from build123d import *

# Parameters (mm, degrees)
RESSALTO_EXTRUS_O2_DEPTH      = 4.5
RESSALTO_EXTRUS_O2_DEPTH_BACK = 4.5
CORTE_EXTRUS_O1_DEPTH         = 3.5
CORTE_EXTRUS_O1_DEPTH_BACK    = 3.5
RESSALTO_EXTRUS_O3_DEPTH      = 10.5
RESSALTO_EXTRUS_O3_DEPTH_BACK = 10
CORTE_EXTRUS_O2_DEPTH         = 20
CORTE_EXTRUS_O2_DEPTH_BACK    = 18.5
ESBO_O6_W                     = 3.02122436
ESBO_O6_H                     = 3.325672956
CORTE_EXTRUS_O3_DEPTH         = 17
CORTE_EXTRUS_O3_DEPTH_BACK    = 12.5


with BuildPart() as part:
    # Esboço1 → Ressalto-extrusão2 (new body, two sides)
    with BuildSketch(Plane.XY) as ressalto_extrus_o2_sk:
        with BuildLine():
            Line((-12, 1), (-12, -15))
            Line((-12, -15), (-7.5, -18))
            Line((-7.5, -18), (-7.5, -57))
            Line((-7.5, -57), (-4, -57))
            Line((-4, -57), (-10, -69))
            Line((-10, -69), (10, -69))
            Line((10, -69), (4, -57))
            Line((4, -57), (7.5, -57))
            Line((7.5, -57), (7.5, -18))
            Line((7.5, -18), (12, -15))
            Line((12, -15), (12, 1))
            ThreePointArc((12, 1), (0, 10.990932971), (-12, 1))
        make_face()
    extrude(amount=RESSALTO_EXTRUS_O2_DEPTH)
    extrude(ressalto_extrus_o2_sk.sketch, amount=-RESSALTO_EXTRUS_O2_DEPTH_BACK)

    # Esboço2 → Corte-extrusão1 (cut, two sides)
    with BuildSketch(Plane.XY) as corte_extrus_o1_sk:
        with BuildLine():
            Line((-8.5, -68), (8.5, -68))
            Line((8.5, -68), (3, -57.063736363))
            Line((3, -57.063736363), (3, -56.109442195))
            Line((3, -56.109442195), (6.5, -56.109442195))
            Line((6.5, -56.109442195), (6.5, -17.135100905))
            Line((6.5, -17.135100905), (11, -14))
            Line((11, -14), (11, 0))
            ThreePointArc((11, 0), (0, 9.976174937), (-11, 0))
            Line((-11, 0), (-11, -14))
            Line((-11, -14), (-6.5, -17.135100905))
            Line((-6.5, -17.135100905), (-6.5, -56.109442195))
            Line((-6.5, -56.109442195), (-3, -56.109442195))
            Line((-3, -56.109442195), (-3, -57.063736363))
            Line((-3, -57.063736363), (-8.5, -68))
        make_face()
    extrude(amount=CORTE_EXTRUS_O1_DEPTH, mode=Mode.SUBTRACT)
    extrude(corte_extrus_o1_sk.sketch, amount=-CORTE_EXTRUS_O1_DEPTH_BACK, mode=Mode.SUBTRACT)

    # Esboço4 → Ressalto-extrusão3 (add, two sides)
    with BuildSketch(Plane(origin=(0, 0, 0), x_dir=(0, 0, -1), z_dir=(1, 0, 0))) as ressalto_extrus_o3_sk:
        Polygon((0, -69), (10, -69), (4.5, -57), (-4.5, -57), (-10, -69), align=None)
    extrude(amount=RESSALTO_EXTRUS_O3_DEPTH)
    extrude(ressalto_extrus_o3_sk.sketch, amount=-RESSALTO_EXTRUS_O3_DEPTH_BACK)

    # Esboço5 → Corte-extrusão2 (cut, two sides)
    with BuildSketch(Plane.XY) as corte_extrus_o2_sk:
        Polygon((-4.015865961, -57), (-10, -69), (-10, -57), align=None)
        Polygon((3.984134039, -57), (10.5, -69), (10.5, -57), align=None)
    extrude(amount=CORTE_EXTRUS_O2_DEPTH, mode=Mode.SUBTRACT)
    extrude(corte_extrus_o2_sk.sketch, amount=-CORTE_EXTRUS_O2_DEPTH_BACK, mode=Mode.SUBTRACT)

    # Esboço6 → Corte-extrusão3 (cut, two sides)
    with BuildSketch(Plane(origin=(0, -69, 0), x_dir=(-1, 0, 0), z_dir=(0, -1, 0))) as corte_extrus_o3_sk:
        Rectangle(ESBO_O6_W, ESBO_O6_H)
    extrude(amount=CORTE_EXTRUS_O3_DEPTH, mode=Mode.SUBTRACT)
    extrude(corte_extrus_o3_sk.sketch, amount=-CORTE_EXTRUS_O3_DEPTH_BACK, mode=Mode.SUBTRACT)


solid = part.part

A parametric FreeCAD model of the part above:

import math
import FreeCAD as App
import Part
import Sketcher

V = App.Vector

doc = App.newDocument("Part")
body = doc.addObject("PartDesign::Body", "Body")

# Sketch on XY plane
sketch1 = body.newObject("Sketcher::SketchObject", "Sketch")
sketch1.AttachmentSupport = (doc.getObject("XY_Plane"), [""])
sketch1.MapMode = "FlatFace"
sketch1.addGeometry([
    Part.LineSegment(V(-12, 1, 0), V(-12, -15, 0)),  # 0
    Part.LineSegment(V(-12, -15, 0), V(-7.5, -18, 0)),  # 1
    Part.LineSegment(V(-7.5, -18, 0), V(-7.5, -57, 0)),  # 2
    Part.LineSegment(V(-7.5, -57, 0), V(-4, -57, 0)),  # 3
    Part.LineSegment(V(-4, -57, 0), V(-10, -69, 0)),  # 4
    Part.LineSegment(V(-10, -69, 0), V(10, -69, 0)),  # 5
    Part.LineSegment(V(10, -69, 0), V(4, -57, 0)),  # 6
    Part.LineSegment(V(4, -57, 0), V(7.5, -57, 0)),  # 7
    Part.LineSegment(V(7.5, -57, 0), V(7.5, -18, 0)),  # 8
    Part.LineSegment(V(7.5, -18, 0), V(12, -15, 0)),  # 9
    Part.LineSegment(V(12, -15, 0), V(12, 1, 0)),  # 10
    Part.ArcOfCircle(Part.Circle(V(0, -1.2, 0), V(0, 0, 1), 12.2), math.radians(10), math.radians(170)),  # 11
], False)
sketch1.addConstraint([
    Sketcher.Constraint("Coincident", 0, 2, 1, 1),
    Sketcher.Constraint("Coincident", 1, 2, 2, 1),
    Sketcher.Constraint("Coincident", 2, 2, 3, 1),
    Sketcher.Constraint("Coincident", 3, 2, 4, 1),
    Sketcher.Constraint("Coincident", 4, 2, 5, 1),
    Sketcher.Constraint("Coincident", 5, 2, 6, 1),
    Sketcher.Constraint("Coincident", 6, 2, 7, 1),
    Sketcher.Constraint("Coincident", 7, 2, 8, 1),
    Sketcher.Constraint("Coincident", 8, 2, 9, 1),
    Sketcher.Constraint("Coincident", 9, 2, 10, 1),
    Sketcher.Constraint("Coincident", 10, 2, 11, 1),
    Sketcher.Constraint("Coincident", 11, 2, 0, 1),
    Sketcher.Constraint("Vertical", 0),
    Sketcher.Constraint("Vertical", 2),
    Sketcher.Constraint("Horizontal", 3),
    Sketcher.Constraint("Horizontal", 5),
    Sketcher.Constraint("Horizontal", 7),
    Sketcher.Constraint("Vertical", 8),
    Sketcher.Constraint("Vertical", 10),
    Sketcher.Constraint("Symmetric", 3, 2, 6, 2, -2),
    Sketcher.Constraint("Symmetric", 1, 2, 8, 2, -2),
    Sketcher.Constraint("Symmetric", 0, 2, 9, 2, -2),
    Sketcher.Constraint("PointOnObject", 11, 3, -2),
    Sketcher.Constraint("Equal", 4, 6),
    Sketcher.Constraint("DistanceX", 5, 1, 5, 2, 20.0),
    Sketcher.Constraint("DistanceY", 0, 2, 0, 1, 16.0),
    Sketcher.Constraint("DistanceY", 2, 2, 2, 1, 39.0),
    Sketcher.Constraint("DistanceX", 3, 1, 3, 2, 3.5),
    Sketcher.Constraint("DistanceX", 0, 2, -1, 1, 12.0),
    Sketcher.Constraint("DistanceY", 0, 2, -1, 1, 15.0),
    Sketcher.Constraint("DistanceY", 1, 2, -1, 1, 18.0),
    Sketcher.Constraint("DistanceX", 3, 2, -1, 1, 4.0),
    Sketcher.Constraint("DistanceY", 4, 2, -1, 1, 69.0),
    Sketcher.Constraint("Radius", 11, 12.202001),
])
pad1 = body.newObject("PartDesign::Pad", "Pad")
pad1.Profile = sketch1
pad1.Type = "TwoLengths"
pad1.Length = 4.5
pad1.Length2 = 4.5

# Sketch on XY plane
sketch2 = body.newObject("Sketcher::SketchObject", "Sketch001")
sketch2.AttachmentSupport = (doc.getObject("XY_Plane"), [""])
sketch2.MapMode = "FlatFace"
sketch2.addGeometry([
    Part.LineSegment(V(-8.5, -68, 0), V(8.5, -68, 0)),  # 0
    Part.LineSegment(V(8.5, -68, 0), V(3, -57.1, 0)),  # 1
    Part.LineSegment(V(3, -57.1, 0), V(3, -56.1, 0)),  # 2
    Part.LineSegment(V(3, -56.1, 0), V(6.5, -56.1, 0)),  # 3
    Part.LineSegment(V(6.5, -56.1, 0), V(6.5, -17.1, 0)),  # 4
    Part.LineSegment(V(6.5, -17.1, 0), V(11, -14, 0)),  # 5
    Part.LineSegment(V(11, -14, 0), V(11, 0, 0)),  # 6
    Part.ArcOfCircle(Part.Circle(V(0, -1.1, 0), V(0, 0, 1), 11.1), math.radians(6), math.radians(174)),  # 7
    Part.LineSegment(V(-11, 0, 0), V(-11, -14, 0)),  # 8
    Part.LineSegment(V(-11, -14, 0), V(-6.5, -17.1, 0)),  # 9
    Part.LineSegment(V(-6.5, -17.1, 0), V(-6.5, -56.1, 0)),  # 10
    Part.LineSegment(V(-6.5, -56.1, 0), V(-3, -56.1, 0)),  # 11
    Part.LineSegment(V(-3, -56.1, 0), V(-3, -57.1, 0)),  # 12
    Part.LineSegment(V(-3, -57.1, 0), V(-8.5, -68, 0)),  # 13
], False)
sketch2.addConstraint([
    Sketcher.Constraint("Coincident", 0, 2, 1, 1),
    Sketcher.Constraint("Coincident", 1, 2, 2, 1),
    Sketcher.Constraint("Coincident", 2, 2, 3, 1),
    Sketcher.Constraint("Coincident", 3, 2, 4, 1),
    Sketcher.Constraint("Coincident", 4, 2, 5, 1),
    Sketcher.Constraint("Coincident", 5, 2, 6, 1),
    Sketcher.Constraint("Coincident", 6, 2, 7, 1),
    Sketcher.Constraint("Coincident", 7, 2, 8, 1),
    Sketcher.Constraint("Coincident", 8, 2, 9, 1),
    Sketcher.Constraint("Coincident", 9, 2, 10, 1),
    Sketcher.Constraint("Coincident", 10, 2, 11, 1),
    Sketcher.Constraint("Coincident", 11, 2, 12, 1),
    Sketcher.Constraint("Coincident", 12, 2, 13, 1),
    Sketcher.Constraint("Coincident", 13, 2, 0, 1),
    Sketcher.Constraint("Horizontal", 0),
    Sketcher.Constraint("Vertical", 2),
    Sketcher.Constraint("Horizontal", 3),
    Sketcher.Constraint("Vertical", 4),
    Sketcher.Constraint("Vertical", 6),
    Sketcher.Constraint("Vertical", 8),
    Sketcher.Constraint("Vertical", 10),
    Sketcher.Constraint("Horizontal", 11),
    Sketcher.Constraint("Vertical", 12),
    Sketcher.Constraint("Symmetric", 6, 2, 7, 2, -1, 1),
    Sketcher.Constraint("Symmetric", 4, 2, 9, 2, -2),
    Sketcher.Constraint("Symmetric", 2, 2, 11, 2, -2),
    Sketcher.Constraint("PointOnObject", 7, 3, -2),
    Sketcher.Constraint("Horizontal", 5, 2, 8, 2),
    Sketcher.Constraint("Horizontal", 1, 2, 12, 2),
    Sketcher.Constraint("Equal", 1, 13),
    Sketcher.Constraint("DistanceX", 0, 1, 0, 2, 17.0),
    Sketcher.Constraint("DistanceY", 6, 1, 6, 2, 14.0),
    Sketcher.Constraint("DistanceX", 3, 1, 3, 2, 3.5),
    Sketcher.Constraint("DistanceY", 0, 2, -1, 1, 68.0),
    Sketcher.Constraint("DistanceX", -1, 1, 1, 2, 3.0),
    Sketcher.Constraint("DistanceX", -1, 1, 5, 2, 11.0),
    Sketcher.Constraint("Radius", 7, 11.052536),
    Sketcher.Constraint("Distance", 1, 12.2414),
    Sketcher.Constraint("DistanceY", 4, 1, 4, 2, 38.974341),
    Sketcher.Constraint("DistanceY", 4, 2, -1, 1, 17.135101),
])
pocket1 = body.newObject("PartDesign::Pocket", "Pocket")
pocket1.Profile = sketch2
pocket1.Type = "TwoLengths"
pocket1.Length = 3.5
pocket1.Length2 = 3.5
pocket1.Reversed = True

# Sketch on YZ plane
sketch3 = body.newObject("Sketcher::SketchObject", "Sketch002")
sketch3.AttachmentSupport = (doc.getObject("YZ_Plane"), [""])
sketch3.MapMode = "FlatFace"
sketch3.addGeometry([
    Part.LineSegment(V(-69, -10, 0), V(-57, -4, 0)),
    Part.LineSegment(V(-57, -4, 0), V(-57, 4, 0)),
    Part.LineSegment(V(-57, 4, 0), V(-69, 10, 0)),
    Part.LineSegment(V(-69, 10, 0), V(-69, -10, 0)),
], False)
sketch3.addConstraint([
    Sketcher.Constraint("Coincident", 0, 2, 1, 1),
    Sketcher.Constraint("Coincident", 1, 2, 2, 1),
    Sketcher.Constraint("Coincident", 2, 2, 3, 1),
    Sketcher.Constraint("Coincident", 3, 2, 0, 1),
    Sketcher.Constraint("Vertical", 1),
    Sketcher.Constraint("Vertical", 3),
    Sketcher.Constraint("Equal", 0, 2),
    Sketcher.Constraint("DistanceY", 1, 1, 1, 2, 9.0),
    Sketcher.Constraint("DistanceY", 3, 2, 3, 1, 20.0),
    Sketcher.Constraint("DistanceX", 0, 2, -1, 1, 57.0),
    Sketcher.Constraint("DistanceX", 2, 2, -1, 1, 69.0),
    Sketcher.Constraint("DistanceY", -1, 1, 2, 2, 10.0),
])
pad2 = body.newObject("PartDesign::Pad", "Pad001")
pad2.Profile = sketch3
pad2.Type = "TwoLengths"
pad2.Length = 10.5
pad2.Length2 = 10

# Sketch on XY plane
sketch4 = body.newObject("Sketcher::SketchObject", "Sketch003")
sketch4.AttachmentSupport = (doc.getObject("XY_Plane"), [""])
sketch4.MapMode = "FlatFace"
sketch4.addGeometry([
    Part.LineSegment(V(-10, -69, 0), V(-4, -57, 0)),  # 0
    Part.LineSegment(V(-4, -57, 0), V(-10, -57, 0)),  # 1
    Part.LineSegment(V(-10, -57, 0), V(-10, -69, 0)),  # 2
    Part.LineSegment(V(4, -57, 0), V(10, -69, 0)),  # 3
    Part.LineSegment(V(10, -69, 0), V(10, -57, 0)),  # 4
    Part.LineSegment(V(10, -57, 0), V(4, -57, 0)),  # 5
], False)
sketch4.addConstraint([
    Sketcher.Constraint("Coincident", 0, 2, 1, 1),
    Sketcher.Constraint("Coincident", 1, 2, 2, 1),
    Sketcher.Constraint("Coincident", 2, 2, 0, 1),
    Sketcher.Constraint("Coincident", 3, 2, 4, 1),
    Sketcher.Constraint("Coincident", 4, 2, 5, 1),
    Sketcher.Constraint("Coincident", 5, 2, 3, 1),
    Sketcher.Constraint("Horizontal", 1),
    Sketcher.Constraint("Vertical", 2),
    Sketcher.Constraint("Vertical", 4),
    Sketcher.Constraint("Horizontal", 5),
    Sketcher.Constraint("Horizontal", 2, 2, 3, 2),
    Sketcher.Constraint("Horizontal", 1, 2, 4, 2),
    Sketcher.Constraint("DistanceY", 2, 2, 2, 1, 12.0),
    Sketcher.Constraint("DistanceY", 0, 2, -1, 1, 57.0),
    Sketcher.Constraint("DistanceX", 1, 2, -1, 1, 10.0),
    Sketcher.Constraint("DistanceX", 0, 2, 5, 2, 8.0),
    Sketcher.Constraint("DistanceX", -1, 1, 3, 2, 10.5),
    Sketcher.Constraint("Distance", 0, 13.40932),
])
pocket2 = body.newObject("PartDesign::Pocket", "Pocket001")
pocket2.Profile = sketch4
pocket2.Type = "ThroughAll"
pocket2.Midplane = True

# Sketch on XZ plane
sketch5 = body.newObject("Sketcher::SketchObject", "Sketch004")
sketch5.AttachmentSupport = (doc.getObject("XZ_Plane"), [""])
sketch5.MapMode = "FlatFace"
sketch5.AttachmentOffset = App.Placement(V(0, 0, 69), App.Rotation())
sketch5.addGeometry([
    Part.LineSegment(V(1.5, -1.7, 0), V(1.5, 1.7, 0)),
    Part.LineSegment(V(1.5, 1.7, 0), V(-1.5, 1.7, 0)),
    Part.LineSegment(V(-1.5, 1.7, 0), V(-1.5, -1.7, 0)),
    Part.LineSegment(V(-1.5, -1.7, 0), V(1.5, -1.7, 0)),
], False)
sketch5.addConstraint([
    Sketcher.Constraint("Coincident", 0, 2, 1, 1),
    Sketcher.Constraint("Coincident", 1, 2, 2, 1),
    Sketcher.Constraint("Coincident", 2, 2, 3, 1),
    Sketcher.Constraint("Coincident", 3, 2, 0, 1),
    Sketcher.Constraint("Vertical", 0),
    Sketcher.Constraint("Horizontal", 1),
    Sketcher.Constraint("Vertical", 2),
    Sketcher.Constraint("Horizontal", 3),
    Sketcher.Constraint("Symmetric", 0, 2, 2, 2, -1, 1),
    Sketcher.Constraint("DistanceX", 1, 2, 1, 1, 3.021224),
    Sketcher.Constraint("DistanceY", 0, 1, 0, 2, 3.325673),
])
pocket3 = body.newObject("PartDesign::Pocket", "Pocket002")
pocket3.Profile = sketch5
pocket3.Type = "TwoLengths"
pocket3.Length = 17
pocket3.Length2 = 12.5
pocket3.Reversed = True

doc.recompute()
